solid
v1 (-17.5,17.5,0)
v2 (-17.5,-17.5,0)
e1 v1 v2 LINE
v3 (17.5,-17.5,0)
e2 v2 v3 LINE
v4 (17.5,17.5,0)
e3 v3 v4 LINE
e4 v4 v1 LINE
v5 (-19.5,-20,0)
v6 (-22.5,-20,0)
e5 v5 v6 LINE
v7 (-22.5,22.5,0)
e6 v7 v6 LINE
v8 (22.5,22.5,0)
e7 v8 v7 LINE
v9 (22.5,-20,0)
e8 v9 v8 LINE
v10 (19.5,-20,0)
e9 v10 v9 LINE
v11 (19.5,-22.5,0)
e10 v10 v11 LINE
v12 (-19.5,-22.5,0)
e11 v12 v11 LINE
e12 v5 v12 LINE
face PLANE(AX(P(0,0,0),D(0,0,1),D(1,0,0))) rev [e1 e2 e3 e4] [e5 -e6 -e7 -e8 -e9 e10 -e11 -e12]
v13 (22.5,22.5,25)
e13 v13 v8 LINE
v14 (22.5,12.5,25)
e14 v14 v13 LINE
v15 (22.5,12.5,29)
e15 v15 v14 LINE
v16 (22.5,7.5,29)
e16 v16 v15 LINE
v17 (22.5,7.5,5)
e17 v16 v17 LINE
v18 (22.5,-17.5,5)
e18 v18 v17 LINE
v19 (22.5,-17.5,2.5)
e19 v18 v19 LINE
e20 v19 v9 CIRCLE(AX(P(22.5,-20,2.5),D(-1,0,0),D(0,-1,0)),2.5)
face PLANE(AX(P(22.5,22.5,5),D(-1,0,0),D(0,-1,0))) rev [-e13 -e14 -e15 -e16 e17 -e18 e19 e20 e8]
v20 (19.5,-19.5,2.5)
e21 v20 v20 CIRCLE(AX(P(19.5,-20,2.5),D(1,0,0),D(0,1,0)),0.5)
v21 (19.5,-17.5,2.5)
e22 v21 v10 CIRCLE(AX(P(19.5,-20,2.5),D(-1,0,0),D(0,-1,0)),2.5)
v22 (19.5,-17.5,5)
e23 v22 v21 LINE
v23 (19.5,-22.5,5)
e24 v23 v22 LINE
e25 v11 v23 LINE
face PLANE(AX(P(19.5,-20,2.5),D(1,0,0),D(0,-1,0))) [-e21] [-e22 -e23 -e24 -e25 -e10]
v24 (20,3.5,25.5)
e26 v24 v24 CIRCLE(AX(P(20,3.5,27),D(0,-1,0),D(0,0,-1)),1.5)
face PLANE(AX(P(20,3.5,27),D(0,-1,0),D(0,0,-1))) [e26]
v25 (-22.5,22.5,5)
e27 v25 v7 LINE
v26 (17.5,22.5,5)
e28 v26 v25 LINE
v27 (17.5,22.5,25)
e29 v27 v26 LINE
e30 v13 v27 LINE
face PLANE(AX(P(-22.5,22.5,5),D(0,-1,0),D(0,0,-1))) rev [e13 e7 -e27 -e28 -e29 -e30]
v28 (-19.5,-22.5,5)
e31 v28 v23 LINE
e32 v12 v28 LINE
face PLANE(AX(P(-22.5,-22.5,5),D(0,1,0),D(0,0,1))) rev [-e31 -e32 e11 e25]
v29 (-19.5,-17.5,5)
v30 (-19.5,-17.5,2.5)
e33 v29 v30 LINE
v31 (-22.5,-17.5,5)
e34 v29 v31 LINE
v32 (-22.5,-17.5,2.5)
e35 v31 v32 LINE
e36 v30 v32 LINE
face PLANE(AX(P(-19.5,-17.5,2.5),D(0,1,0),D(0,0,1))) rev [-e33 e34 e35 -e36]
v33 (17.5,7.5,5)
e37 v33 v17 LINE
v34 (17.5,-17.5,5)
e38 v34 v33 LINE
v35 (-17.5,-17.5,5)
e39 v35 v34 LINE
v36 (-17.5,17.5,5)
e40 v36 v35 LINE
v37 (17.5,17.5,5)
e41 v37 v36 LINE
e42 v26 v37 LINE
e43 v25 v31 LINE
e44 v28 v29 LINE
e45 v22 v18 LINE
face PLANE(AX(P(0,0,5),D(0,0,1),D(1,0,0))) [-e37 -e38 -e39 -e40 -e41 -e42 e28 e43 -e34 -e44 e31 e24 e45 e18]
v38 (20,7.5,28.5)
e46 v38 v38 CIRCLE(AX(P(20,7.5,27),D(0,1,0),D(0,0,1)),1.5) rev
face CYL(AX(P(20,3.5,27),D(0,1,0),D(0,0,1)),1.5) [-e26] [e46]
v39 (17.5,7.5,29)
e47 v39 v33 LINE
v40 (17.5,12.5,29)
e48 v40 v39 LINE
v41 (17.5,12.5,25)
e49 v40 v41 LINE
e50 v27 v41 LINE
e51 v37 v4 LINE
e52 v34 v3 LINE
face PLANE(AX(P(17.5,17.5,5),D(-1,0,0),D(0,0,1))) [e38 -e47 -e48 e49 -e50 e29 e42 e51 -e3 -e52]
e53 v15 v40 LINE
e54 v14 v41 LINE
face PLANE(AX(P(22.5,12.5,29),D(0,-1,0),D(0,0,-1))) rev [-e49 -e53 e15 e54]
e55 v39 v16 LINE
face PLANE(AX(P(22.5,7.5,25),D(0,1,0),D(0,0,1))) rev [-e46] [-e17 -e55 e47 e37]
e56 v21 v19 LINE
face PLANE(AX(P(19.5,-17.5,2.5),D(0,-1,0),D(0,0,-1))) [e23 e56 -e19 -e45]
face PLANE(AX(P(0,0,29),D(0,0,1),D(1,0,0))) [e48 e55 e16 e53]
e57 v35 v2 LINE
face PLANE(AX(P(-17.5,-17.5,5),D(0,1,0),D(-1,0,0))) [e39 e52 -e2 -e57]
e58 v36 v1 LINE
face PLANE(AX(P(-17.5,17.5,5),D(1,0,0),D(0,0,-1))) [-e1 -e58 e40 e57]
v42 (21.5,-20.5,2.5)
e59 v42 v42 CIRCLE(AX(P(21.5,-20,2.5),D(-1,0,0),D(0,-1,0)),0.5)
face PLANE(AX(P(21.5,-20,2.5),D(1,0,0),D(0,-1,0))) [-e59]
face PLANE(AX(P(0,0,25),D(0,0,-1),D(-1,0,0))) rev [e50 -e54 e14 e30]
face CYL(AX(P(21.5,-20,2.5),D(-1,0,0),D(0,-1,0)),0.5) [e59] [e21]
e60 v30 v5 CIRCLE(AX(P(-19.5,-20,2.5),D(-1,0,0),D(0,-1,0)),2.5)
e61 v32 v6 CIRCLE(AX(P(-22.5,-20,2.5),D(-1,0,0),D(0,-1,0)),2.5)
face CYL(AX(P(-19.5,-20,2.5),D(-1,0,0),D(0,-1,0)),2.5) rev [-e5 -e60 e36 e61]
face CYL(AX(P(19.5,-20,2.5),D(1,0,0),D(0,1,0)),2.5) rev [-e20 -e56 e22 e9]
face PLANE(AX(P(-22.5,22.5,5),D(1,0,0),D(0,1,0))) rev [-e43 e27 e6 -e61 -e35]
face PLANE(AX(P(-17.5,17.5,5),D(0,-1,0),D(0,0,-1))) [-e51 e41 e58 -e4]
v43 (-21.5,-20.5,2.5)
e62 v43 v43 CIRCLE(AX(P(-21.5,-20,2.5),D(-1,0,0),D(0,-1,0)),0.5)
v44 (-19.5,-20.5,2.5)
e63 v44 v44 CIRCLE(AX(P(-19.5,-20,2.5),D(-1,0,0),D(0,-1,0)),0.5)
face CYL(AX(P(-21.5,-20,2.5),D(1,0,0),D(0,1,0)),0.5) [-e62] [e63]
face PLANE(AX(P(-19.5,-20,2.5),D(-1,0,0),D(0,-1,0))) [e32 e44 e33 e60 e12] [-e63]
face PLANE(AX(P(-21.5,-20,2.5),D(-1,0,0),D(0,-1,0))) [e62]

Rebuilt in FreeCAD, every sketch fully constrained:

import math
import FreeCAD as App
import Part
import Sketcher
from FreeCAD import Vector
Q = App.Units.Quantity

doc = App.newDocument("Part")
params = doc.addObject("Spreadsheet::Sheet", "Params")
for row, (alias, value) in enumerate([
    ("sketch1_width", "45 mm"),
    ("sketch1_width2", "35 mm"),
    ("pad1_length", "5 mm"),
    ("sketch2_radius", "2.5 mm"),
    ("sketch2_width", "5 mm"),
    ("pocket1_length", "3 mm"),
    ("sketch3_diameter", "1 mm"),
    ("pad2_length", "2 mm"),
    ("sketch4_width", "5 mm"),
    ("sketch4_height", "15 mm"),
    ("pad3_length", "20 mm"),
    ("sketch5_width", "5 mm"),
    ("pad4_length", "4 mm"),
    ("sketch6_diameter", "3 mm"),
    ("pad5_length", "4 mm"),
], start=1):
    params.set(f"A{row}", alias)
    params.set(f"B{row}", "=" + value)
    params.setAlias(f"B{row}", alias)

body = doc.addObject("PartDesign::Body", "Body")

sketch1 = body.newObject("Sketcher::SketchObject", "Sketch")
sketch1.AttachmentSupport = (doc.getObject("XY_Plane"), [""])
sketch1.MapMode = "FlatFace"
sketch1.addGeometry([
    Part.LineSegment(Vector(-22, 22, 0), Vector(-22, -22, 0)),
    Part.LineSegment(Vector(-22, -22, 0), Vector(22, -22, 0)),
    Part.LineSegment(Vector(22, -22, 0), Vector(22, 22, 0)),
    Part.LineSegment(Vector(22, 22, 0), Vector(-22, 22, 0)),
    Part.LineSegment(Vector(18, -18, 0), Vector(-18, -18, 0)),
    Part.LineSegment(Vector(-18, -18, 0), Vector(-18, 18, 0)),
    Part.LineSegment(Vector(-18, 18, 0), Vector(18, 18, 0)),
    Part.LineSegment(Vector(18, 18, 0), Vector(18, -18, 0)),
], False)
sketch1.addConstraint([
    Sketcher.Constraint("Coincident", 0, 2, 1, 1),
    Sketcher.Constraint("Coincident", 1, 2, 2, 1),
    Sketcher.Constraint("Coincident", 2, 2, 3, 1),
    Sketcher.Constraint("Coincident", 3, 2, 0, 1),
    Sketcher.Constraint("Coincident", 4, 2, 5, 1),
    Sketcher.Constraint("Coincident", 5, 2, 6, 1),
    Sketcher.Constraint("Coincident", 6, 2, 7, 1),
    Sketcher.Constraint("Coincident", 7, 2, 4, 1),
    Sketcher.Constraint("Vertical", 0),
    Sketcher.Constraint("Horizontal", 1),
    Sketcher.Constraint("Vertical", 2),
    Sketcher.Constraint("Horizontal", 3),
    Sketcher.Constraint("Horizontal", 4),
    Sketcher.Constraint("Vertical", 5),
    Sketcher.Constraint("Horizontal", 6),
    Sketcher.Constraint("Vertical", 7),
    Sketcher.Constraint("Symmetric", 0, 2, 2, 2, -1, 1),
    Sketcher.Constraint("Symmetric", 4, 2, 6, 2, -1, 1),
    Sketcher.Constraint("Equal", 3, 0),
    Sketcher.Constraint("Equal", 6, 5),
    Sketcher.Constraint("DistanceX", 1, 1, 1, 2, Q("45 mm")),
    Sketcher.Constraint("DistanceX", 4, 2, 4, 1, Q("35 mm")),
])
sketch1.setExpression("Constraints[20]", "Params.sketch1_width")
sketch1.setExpression("Constraints[21]", "Params.sketch1_width2")
pad1 = body.newObject("PartDesign::Pad", "Pad")
pad1.Profile = sketch1
pad1.setExpression("Length", "Params.pad1_length")

sketch2 = body.newObject("Sketcher::SketchObject", "Sketch001")
sketch2.AttachmentSupport = (doc.getObject("YZ_Plane"), [""])
sketch2.MapMode = "FlatFace"
sketch2.AttachmentOffset = App.Placement(Vector(0, 0, -22.5), App.Rotation())
sketch2.addGeometry([
    Part.LineSegment(Vector(-17.5, 5, 0), Vector(-17.5, 2.5, 0)),
    Part.ArcOfCircle(Part.Circle(Vector(-20, 2.5, 0), Vector(0, 0, 1), 2.5), math.radians(-90), math.radians(0)),
    Part.LineSegment(Vector(-20, 0, 0), Vector(-22.5, 0, 0)),
    Part.LineSegment(Vector(-22.5, 0, 0), Vector(-22.5, 5, 0)),
    Part.LineSegment(Vector(-22.5, 5, 0), Vector(-17.5, 5, 0)),
], False)
sketch2.addConstraint([
    Sketcher.Constraint("Tangent", 0, 2, 1, 2),
    Sketcher.Constraint("Tangent", 1, 1, 2, 1),
    Sketcher.Constraint("Coincident", 2, 2, 3, 1),
    Sketcher.Constraint("Coincident", 3, 2, 4, 1),
    Sketcher.Constraint("Coincident", 4, 2, 0, 1),
    Sketcher.Constraint("Vertical", 0),
    Sketcher.Constraint("Horizontal", 2),
    Sketcher.Constraint("Vertical", 3),
    Sketcher.Constraint("Horizontal", 4),
    Sketcher.Constraint("PointOnObject", 1, 1, -1),
    Sketcher.Constraint("Equal", 2, 0),
    Sketcher.Constraint("Radius", 1, Q("2.5 mm")),
    Sketcher.Constraint("DistanceX", 4, 1, 4, 2, Q("5 mm")),
    Sketcher.Constraint("DistanceX", 1, 3, -1, 1, Q("20 mm")),
])
sketch2.setExpression("Constraints[11]", "Params.sketch2_radius")
sketch2.setExpression("Constraints[12]", "Params.sketch2_width")
pocket1 = body.newObject("PartDesign::Pocket", "Pocket")
pocket1.Profile = sketch2
pocket1.setExpression("Length", "Params.pocket1_length")
pocket1.Reversed = True
doc.recompute()

mirrored = body.newObject("PartDesign::Mirrored", "Mirrored")
mirrored.Originals = [pocket1]
mirrored.MirrorPlane = (doc.getObject("YZ_Plane"), [""])
body.Tip = mirrored

sketch3 = body.newObject("Sketcher::SketchObject", "Sketch002")
sketch3.AttachmentSupport = (doc.getObject("YZ_Plane"), [""])
sketch3.MapMode = "FlatFace"
sketch3.AttachmentOffset = App.Placement(Vector(0, 0, -19.5), App.Rotation())
sketch3.addGeometry(Part.Circle(Vector(-20, 2.5, 0), Vector(0, 0, 1), 0.5), False)
sketch3.addConstraint([
    Sketcher.Constraint("Diameter", 0, Q("1 mm")),
    Sketcher.Constraint("DistanceX", 0, 3, -1, 1, Q("20 mm")),
    Sketcher.Constraint("DistanceY", -1, 1, 0, 3, Q("2.5 mm")),
])
sketch3.setExpression("Constraints[0]", "Params.sketch3_diameter")
pad2 = body.newObject("PartDesign::Pad", "Pad001")
pad2.Profile = sketch3
pad2.setExpression("Length", "Params.pad2_length")
pad2.Reversed = True
doc.recompute()

mirrored2 = body.newObject("PartDesign::Mirrored", "Mirrored001")
mirrored2.Originals = [pad2]
mirrored2.MirrorPlane = (doc.getObject("YZ_Plane"), [""])
body.Tip = mirrored2

sketch4 = body.newObject("Sketcher::SketchObject", "Sketch003")
sketch4.AttachmentSupport = (doc.getObject("XY_Plane"), [""])
sketch4.MapMode = "FlatFace"
sketch4.AttachmentOffset = App.Placement(Vector(0, 0, 5), App.Rotation())
sketch4.addGeometry([
    Part.LineSegment(Vector(18, 22, 0), Vector(18, 8, 0)),
    Part.LineSegment(Vector(18, 8, 0), Vector(22, 8, 0)),
    Part.LineSegment(Vector(22, 8, 0), Vector(22, 22, 0)),
    Part.LineSegment(Vector(22, 22, 0), Vector(18, 22, 0)),
], False)
sketch4.addConstraint([
    Sketcher.Constraint("Coincident", 0, 2, 1, 1),
    Sketcher.Constraint("Coincident", 1, 2, 2, 1),
    Sketcher.Constraint("Coincident", 2, 2, 3, 1),
    Sketcher.Constraint("Coincident", 3, 2, 0, 1),
    Sketcher.Constraint("Vertical", 0),
    Sketcher.Constraint("Horizontal", 1),
    Sketcher.Constraint("Vertical", 2),
    Sketcher.Constraint("Horizontal", 3),
    Sketcher.Constraint("DistanceX", 1, 1, 1, 2, Q("5 mm")),
    Sketcher.Constraint("DistanceY", 0, 2, 0, 1, Q("15 mm")),
    Sketcher.Constraint("DistanceX", -1, 1, 0, 2, Q("17.5 mm")),
    Sketcher.Constraint("DistanceY", -1, 1, 0, 2, Q("7.5 mm")),
])
sketch4.setExpression("Constraints[8]", "Params.sketch4_width")
sketch4.setExpression("Constraints[9]", "Params.sketch4_height")
pad3 = body.newObject("PartDesign::Pad", "Pad002")
pad3.Profile = sketch4
pad3.setExpression("Length", "Params.pad3_length")

sketch5 = body.newObject("Sketcher::SketchObject", "Sketch004")
sketch5.AttachmentSupport = (doc.getObject("XY_Plane"), [""])
sketch5.MapMode = "FlatFace"
sketch5.AttachmentOffset = App.Placement(Vector(0, 0, 25), App.Rotation())
sketch5.addGeometry([
    Part.LineSegment(Vector(18, 12, 0), Vector(18, 8, 0)),
    Part.LineSegment(Vector(18, 8, 0), Vector(22, 8, 0)),
    Part.LineSegment(Vector(22, 8, 0), Vector(22, 12, 0)),
    Part.LineSegment(Vector(22, 12, 0), Vector(18, 12, 0)),
], False)
sketch5.addConstraint([
    Sketcher.Constraint("Coincident", 0, 2, 1, 1),
    Sketcher.Constraint("Coincident", 1, 2, 2, 1),
    Sketcher.Constraint("Coincident", 2, 2, 3, 1),
    Sketcher.Constraint("Coincident", 3, 2, 0, 1),
    Sketcher.Constraint("Vertical", 0),
    Sketcher.Constraint("Horizontal", 1),
    Sketcher.Constraint("Vertical", 2),
    Sketcher.Constraint("Horizontal", 3),
    Sketcher.Constraint("Equal", 3, 0),
    Sketcher.Constraint("DistanceX", 1, 1, 1, 2, Q("5 mm")),
    Sketcher.Constraint("DistanceX", -1, 1, 0, 2, Q("17.5 mm")),
    Sketcher.Constraint("DistanceY", -1, 1, 0, 2, Q("7.5 mm")),
])
sketch5.setExpression("Constraints[9]", "Params.sketch5_width")
pad4 = body.newObject("PartDesign::Pad", "Pad003")
pad4.Profile = sketch5
pad4.setExpression("Length", "Params.pad4_length")

sketch6 = body.newObject("Sketcher::SketchObject", "Sketch005")
sketch6.AttachmentSupport = (doc.getObject("XZ_Plane"), [""])
sketch6.MapMode = "FlatFace"
sketch6.AttachmentOffset = App.Placement(Vector(0, 0, -7.5), App.Rotation())
sketch6.addGeometry(Part.Circle(Vector(20, 27, 0), Vector(0, 0, 1), 1.5), False)
sketch6.addConstraint([
    Sketcher.Constraint("Diameter", 0, Q("3 mm")),
    Sketcher.Constraint("DistanceX", -1, 1, 0, 3, Q("20 mm")),
    Sketcher.Constraint("DistanceY", -1, 1, 0, 3, Q("27 mm")),
])
sketch6.setExpression("Constraints[0]", "Params.sketch6_diameter")
pad5 = body.newObject("PartDesign::Pad", "Pad004")
pad5.Profile = sketch6
pad5.setExpression("Length", "Params.pad5_length")

doc.recompute()
